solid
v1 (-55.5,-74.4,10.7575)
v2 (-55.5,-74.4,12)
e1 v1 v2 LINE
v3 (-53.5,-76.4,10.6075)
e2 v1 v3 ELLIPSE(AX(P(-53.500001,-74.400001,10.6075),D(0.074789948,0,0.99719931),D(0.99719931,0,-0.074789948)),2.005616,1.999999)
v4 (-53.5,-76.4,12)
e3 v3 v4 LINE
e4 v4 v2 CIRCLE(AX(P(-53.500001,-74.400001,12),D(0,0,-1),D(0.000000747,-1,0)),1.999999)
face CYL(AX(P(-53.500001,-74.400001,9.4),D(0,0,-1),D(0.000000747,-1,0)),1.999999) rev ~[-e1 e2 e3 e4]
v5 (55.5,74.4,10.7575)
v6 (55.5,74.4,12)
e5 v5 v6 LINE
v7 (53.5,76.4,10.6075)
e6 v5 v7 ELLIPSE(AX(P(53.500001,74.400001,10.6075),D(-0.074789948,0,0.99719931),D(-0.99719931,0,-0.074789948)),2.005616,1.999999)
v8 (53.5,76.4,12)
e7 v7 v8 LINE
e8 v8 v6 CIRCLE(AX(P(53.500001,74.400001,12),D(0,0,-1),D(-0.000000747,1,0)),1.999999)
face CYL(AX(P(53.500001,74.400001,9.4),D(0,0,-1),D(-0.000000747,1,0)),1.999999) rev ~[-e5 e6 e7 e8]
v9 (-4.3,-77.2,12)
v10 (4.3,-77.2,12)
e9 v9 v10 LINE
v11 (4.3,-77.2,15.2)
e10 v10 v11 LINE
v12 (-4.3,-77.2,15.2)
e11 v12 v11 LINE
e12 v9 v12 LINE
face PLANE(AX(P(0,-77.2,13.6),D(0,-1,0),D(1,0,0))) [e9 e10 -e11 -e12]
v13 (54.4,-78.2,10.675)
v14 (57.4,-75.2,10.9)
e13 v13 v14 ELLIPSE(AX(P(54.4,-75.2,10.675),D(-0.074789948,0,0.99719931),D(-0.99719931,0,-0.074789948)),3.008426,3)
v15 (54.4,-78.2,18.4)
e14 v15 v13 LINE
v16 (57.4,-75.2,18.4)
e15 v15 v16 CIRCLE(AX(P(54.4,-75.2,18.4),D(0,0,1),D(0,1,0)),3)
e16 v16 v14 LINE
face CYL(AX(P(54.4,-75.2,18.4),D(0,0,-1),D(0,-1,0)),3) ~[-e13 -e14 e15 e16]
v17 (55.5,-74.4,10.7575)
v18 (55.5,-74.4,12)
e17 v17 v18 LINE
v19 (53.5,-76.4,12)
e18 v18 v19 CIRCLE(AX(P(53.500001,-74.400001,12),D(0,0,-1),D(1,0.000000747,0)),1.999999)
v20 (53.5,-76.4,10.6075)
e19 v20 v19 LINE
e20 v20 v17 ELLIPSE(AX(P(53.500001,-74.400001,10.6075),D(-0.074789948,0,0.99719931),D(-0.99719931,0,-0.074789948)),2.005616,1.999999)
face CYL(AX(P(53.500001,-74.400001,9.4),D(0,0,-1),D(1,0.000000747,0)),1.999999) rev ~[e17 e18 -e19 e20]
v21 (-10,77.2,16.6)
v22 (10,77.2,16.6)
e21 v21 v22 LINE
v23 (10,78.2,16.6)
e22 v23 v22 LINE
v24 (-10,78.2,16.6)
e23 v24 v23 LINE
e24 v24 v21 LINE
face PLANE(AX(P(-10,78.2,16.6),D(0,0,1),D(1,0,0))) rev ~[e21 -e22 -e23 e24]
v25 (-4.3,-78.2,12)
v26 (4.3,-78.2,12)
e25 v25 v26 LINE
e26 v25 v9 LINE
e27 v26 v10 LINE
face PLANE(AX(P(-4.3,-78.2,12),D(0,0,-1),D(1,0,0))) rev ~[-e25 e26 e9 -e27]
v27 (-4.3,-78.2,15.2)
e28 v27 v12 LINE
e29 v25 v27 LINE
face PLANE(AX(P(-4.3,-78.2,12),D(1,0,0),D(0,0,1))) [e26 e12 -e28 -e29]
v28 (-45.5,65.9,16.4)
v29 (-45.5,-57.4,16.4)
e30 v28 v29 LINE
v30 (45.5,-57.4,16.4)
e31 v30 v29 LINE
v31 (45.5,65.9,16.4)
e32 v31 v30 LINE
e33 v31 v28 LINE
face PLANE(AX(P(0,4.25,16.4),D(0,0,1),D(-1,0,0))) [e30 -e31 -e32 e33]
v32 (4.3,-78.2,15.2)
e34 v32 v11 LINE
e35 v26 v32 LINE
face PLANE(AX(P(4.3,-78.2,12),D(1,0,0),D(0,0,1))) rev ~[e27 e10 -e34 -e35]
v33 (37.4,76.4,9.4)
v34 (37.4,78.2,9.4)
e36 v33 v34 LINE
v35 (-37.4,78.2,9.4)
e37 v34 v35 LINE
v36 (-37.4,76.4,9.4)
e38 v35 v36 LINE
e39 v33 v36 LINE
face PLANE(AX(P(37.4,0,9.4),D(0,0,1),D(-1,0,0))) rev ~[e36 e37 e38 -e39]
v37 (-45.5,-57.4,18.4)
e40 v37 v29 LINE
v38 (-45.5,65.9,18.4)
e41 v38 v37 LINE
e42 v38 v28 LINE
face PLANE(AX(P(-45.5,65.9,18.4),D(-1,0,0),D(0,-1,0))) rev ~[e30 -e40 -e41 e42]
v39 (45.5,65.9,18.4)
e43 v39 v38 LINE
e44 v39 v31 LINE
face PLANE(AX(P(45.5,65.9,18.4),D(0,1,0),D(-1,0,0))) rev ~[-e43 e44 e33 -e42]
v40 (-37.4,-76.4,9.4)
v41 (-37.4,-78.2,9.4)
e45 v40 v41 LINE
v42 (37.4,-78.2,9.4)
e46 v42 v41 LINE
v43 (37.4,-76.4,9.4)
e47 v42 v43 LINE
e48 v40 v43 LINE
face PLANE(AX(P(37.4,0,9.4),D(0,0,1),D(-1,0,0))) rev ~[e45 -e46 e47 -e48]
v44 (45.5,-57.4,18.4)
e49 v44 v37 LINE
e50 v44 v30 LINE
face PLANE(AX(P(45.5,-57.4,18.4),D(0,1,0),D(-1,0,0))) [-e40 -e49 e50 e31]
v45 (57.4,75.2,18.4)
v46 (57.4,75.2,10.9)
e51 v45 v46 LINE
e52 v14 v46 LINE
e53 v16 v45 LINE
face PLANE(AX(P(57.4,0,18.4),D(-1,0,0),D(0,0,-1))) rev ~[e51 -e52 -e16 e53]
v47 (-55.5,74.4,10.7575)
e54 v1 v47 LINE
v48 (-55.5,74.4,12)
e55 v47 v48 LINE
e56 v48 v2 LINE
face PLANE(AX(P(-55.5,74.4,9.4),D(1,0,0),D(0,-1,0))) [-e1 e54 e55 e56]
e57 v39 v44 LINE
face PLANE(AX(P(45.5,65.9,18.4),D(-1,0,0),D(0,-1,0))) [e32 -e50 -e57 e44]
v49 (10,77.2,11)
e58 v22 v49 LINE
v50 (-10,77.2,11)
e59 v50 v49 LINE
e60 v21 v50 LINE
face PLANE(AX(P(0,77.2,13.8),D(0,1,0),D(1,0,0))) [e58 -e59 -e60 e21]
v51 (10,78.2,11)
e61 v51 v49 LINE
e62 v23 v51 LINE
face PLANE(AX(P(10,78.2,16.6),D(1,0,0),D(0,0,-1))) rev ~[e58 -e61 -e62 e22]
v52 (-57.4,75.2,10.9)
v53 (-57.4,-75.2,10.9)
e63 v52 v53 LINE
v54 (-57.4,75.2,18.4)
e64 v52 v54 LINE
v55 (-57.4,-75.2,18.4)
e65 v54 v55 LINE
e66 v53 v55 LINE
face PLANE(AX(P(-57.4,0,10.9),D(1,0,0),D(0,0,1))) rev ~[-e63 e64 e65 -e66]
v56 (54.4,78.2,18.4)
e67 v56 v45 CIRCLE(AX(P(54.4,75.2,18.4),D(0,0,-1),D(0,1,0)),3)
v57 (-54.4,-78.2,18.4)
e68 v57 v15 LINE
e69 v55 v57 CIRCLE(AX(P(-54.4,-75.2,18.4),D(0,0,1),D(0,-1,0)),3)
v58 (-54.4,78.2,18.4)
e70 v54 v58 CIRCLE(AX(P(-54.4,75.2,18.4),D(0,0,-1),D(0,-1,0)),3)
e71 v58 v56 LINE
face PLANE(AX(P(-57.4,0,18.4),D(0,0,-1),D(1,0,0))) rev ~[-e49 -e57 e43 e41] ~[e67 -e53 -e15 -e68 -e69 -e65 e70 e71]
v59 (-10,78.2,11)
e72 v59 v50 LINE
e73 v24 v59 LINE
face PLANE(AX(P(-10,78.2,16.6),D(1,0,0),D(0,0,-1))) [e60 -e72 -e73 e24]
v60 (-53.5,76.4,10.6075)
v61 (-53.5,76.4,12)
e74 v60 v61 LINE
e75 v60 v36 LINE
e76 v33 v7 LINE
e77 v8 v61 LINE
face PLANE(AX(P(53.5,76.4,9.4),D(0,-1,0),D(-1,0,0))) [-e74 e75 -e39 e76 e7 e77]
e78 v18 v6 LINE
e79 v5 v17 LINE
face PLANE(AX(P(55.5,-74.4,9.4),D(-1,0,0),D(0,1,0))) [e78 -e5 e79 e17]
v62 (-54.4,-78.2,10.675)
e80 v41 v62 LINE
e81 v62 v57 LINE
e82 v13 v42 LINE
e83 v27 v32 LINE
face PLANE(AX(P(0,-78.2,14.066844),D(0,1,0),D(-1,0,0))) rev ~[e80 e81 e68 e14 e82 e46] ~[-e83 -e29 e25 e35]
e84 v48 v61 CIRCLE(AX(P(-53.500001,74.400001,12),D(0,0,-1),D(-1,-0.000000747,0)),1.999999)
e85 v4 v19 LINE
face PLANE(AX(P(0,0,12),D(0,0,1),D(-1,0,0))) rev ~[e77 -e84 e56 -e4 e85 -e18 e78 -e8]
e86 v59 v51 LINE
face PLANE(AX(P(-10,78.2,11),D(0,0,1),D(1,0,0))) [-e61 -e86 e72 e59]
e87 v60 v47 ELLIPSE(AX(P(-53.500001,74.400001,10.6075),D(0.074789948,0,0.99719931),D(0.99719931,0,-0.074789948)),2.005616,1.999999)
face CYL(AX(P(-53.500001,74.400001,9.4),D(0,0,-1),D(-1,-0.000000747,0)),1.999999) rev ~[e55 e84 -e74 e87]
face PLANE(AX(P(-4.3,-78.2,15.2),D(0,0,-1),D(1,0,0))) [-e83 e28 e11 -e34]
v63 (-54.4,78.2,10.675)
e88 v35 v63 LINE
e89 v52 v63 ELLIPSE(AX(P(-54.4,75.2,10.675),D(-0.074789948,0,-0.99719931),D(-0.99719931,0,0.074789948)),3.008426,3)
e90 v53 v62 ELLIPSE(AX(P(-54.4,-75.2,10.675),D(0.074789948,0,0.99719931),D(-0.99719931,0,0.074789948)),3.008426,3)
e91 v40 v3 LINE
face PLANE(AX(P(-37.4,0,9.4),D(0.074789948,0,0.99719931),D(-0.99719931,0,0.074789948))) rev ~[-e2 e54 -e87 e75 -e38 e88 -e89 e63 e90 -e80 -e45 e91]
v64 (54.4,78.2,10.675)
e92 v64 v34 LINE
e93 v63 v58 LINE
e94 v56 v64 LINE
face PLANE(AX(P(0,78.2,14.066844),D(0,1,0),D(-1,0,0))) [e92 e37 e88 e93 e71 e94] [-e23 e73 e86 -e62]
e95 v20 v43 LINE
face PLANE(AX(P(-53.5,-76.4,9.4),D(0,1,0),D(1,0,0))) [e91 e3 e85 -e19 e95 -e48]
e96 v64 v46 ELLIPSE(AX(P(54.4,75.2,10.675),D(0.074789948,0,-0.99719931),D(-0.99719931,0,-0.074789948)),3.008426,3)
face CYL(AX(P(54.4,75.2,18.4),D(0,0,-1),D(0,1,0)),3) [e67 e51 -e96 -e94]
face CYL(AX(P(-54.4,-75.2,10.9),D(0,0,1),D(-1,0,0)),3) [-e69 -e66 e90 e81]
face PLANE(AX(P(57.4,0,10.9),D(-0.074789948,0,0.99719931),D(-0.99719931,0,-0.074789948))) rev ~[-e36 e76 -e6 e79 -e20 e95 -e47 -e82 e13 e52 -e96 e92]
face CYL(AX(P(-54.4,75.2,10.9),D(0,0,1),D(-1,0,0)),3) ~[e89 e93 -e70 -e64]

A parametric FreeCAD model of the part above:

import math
import FreeCAD as App
import Part
import Sketcher
from FreeCAD import Vector
Q = App.Units.Quantity


def edges_at(feature, points):
    """Names of the edges that pass closest to the given points."""
    edges = feature.Shape.Edges
    near = lambda p: min(range(len(edges)), key=lambda i: edges[i].distToShape(Part.Vertex(*p))[0])
    return sorted({f"Edge{near(p) + 1}" for p in points})


def add_polygon(sketch, points):
    """Adds a closed chain of lines whose ends are joined by coincident constraints."""
    first, n = sketch.GeometryCount, len(points)
    for a, b in zip(points, points[1:] + points[:1]):
        sketch.addGeometry(Part.LineSegment(App.Vector(*a, 0), App.Vector(*b, 0)), False)
    for i in range(n):
        sketch.addConstraint(Sketcher.Constraint("Coincident", first + i, 2, first + (i + 1) % n, 1))

doc = App.newDocument("Part")
body = doc.addObject("PartDesign::Body", "Body")

# Sketch on XZ plane
sketch1 = body.newObject("Sketcher::SketchObject", "Sketch")
sketch1.AttachmentSupport = (doc.getObject("XZ_Plane"), [""])
sketch1.MapMode = "FlatFace"
add_polygon(sketch1, [(57.4, 6.4), (-57.4, 6.4), (-57.4, -1.1), (-37.4, -2.6), (37.4, -2.6), (57.4, -1.1)])  # lines 0-5
sketch1.addConstraint(Sketcher.Constraint("Horizontal", 0))
sketch1.addConstraint(Sketcher.Constraint("Vertical", 1))
sketch1.addConstraint(Sketcher.Constraint("Horizontal", 3))
sketch1.addConstraint(Sketcher.Constraint("Vertical", 5))
sketch1.addConstraint(Sketcher.Constraint("Symmetric", 1, 2, 4, 2, -2))
sketch1.addConstraint(Sketcher.Constraint("Equal", 2, 4))
sketch1.addConstraint(Sketcher.Constraint("DistanceX", 0, 2, 0, 1, Q("114.8 mm")))
sketch1.addConstraint(Sketcher.Constraint("DistanceX", 3, 1, 3, 2, Q("74.8 mm")))
sketch1.addConstraint(Sketcher.Constraint("DistanceY", 1, 2, 1, 1, Q("7.5 mm")))
sketch1.addConstraint(Sketcher.Constraint("DistanceY", 2, 2, 0, 2, Q("9 mm")))
sketch1.addConstraint(Sketcher.Constraint("DistanceY", -1, 1, 0, 2, Q("6.4 mm")))
pad1 = body.newObject("PartDesign::Pad", "Pad")
pad1.Profile = sketch1
pad1.Type = "TwoLengths"
pad1.Length = 78.2
pad1.Length2 = 78.2

# Sketch on XY plane
sketch2 = body.newObject("Sketcher::SketchObject", "Sketch001")
sketch2.AttachmentSupport = (doc.getObject("XY_Plane"), [""])
sketch2.MapMode = "FlatFace"
sketch2.AttachmentOffset = App.Placement(Vector(0, 0, 6.4), App.Rotation())
add_polygon(sketch2, [(45.5, -57.4), (45.5, 65.9), (-45.5, 65.9), (-45.5, -57.4)])  # lines 0-3
sketch2.addConstraint(Sketcher.Constraint("Vertical", 0))
sketch2.addConstraint(Sketcher.Constraint("Horizontal", 1))
sketch2.addConstraint(Sketcher.Constraint("Vertical", 2))
sketch2.addConstraint(Sketcher.Constraint("Horizontal", 3))
sketch2.addConstraint(Sketcher.Constraint("DistanceX", 1, 2, 1, 1, Q("91 mm")))
sketch2.addConstraint(Sketcher.Constraint("DistanceY", 0, 1, 0, 2, Q("123.3 mm")))
sketch2.addConstraint(Sketcher.Constraint("DistanceX", -1, 1, 0, 2, Q("45.5 mm")))
sketch2.addConstraint(Sketcher.Constraint("DistanceY", -1, 1, 0, 2, Q("65.9 mm")))
pocket1 = body.newObject("PartDesign::Pocket", "Pocket")
pocket1.Profile = sketch2
pocket1.Length = 2

# Sketch on XY plane
sketch3 = body.newObject("Sketcher::SketchObject", "Sketch002")
sketch3.AttachmentSupport = (doc.getObject("XY_Plane"), [""])
sketch3.MapMode = "FlatFace"
sketch3.AttachmentOffset = App.Placement(Vector(0, 0, -2.6), App.Rotation())
sketch3.addGeometry(Part.LineSegment(Vector(53.5, -76.4, 0), Vector(-53.5, -76.4, 0)), False)
sketch3.addGeometry(Part.ArcOfCircle(Part.Circle(Vector(-53.500001, -74.400001, 0), Vector(0, 0, 1), 1.999999), math.radians(179.999957), math.radians(270.000043)), False)
sketch3.addGeometry(Part.LineSegment(Vector(-55.5, -74.4, 0), Vector(-55.5, 74.4, 0)), False)
sketch3.addGeometry(Part.ArcOfCircle(Part.Circle(Vector(-53.500001, 74.400001, 0), Vector(0, 0, 1), 1.999999), math.radians(89.999957), math.radians(180.000043)), False)
sketch3.addGeometry(Part.LineSegment(Vector(-53.5, 76.4, 0), Vector(53.5, 76.4, 0)), False)
sketch3.addGeometry(Part.ArcOfCircle(Part.Circle(Vector(53.500001, 74.400001, 0), Vector(0, 0, 1), 1.999999), math.radians(-0.000043), math.radians(90.000043)), False)
sketch3.addGeometry(Part.LineSegment(Vector(55.5, 74.4, 0), Vector(55.5, -74.4, 0)), False)
sketch3.addGeometry(Part.ArcOfCircle(Part.Circle(Vector(53.500001, -74.400001, 0), Vector(0, 0, 1), 1.999999), math.radians(-90.000043), math.radians(0.000043)), False)
sketch3.addConstraint(Sketcher.Constraint("Tangent", 0, 2, 1, 2))
sketch3.addConstraint(Sketcher.Constraint("Tangent", 1, 1, 2, 1))
sketch3.addConstraint(Sketcher.Constraint("Tangent", 2, 2, 3, 2))
sketch3.addConstraint(Sketcher.Constraint("Tangent", 3, 1, 4, 1))
sketch3.addConstraint(Sketcher.Constraint("Tangent", 4, 2, 5, 2))
sketch3.addConstraint(Sketcher.Constraint("Tangent", 5, 1, 6, 1))
sketch3.addConstraint(Sketcher.Constraint("Tangent", 6, 2, 7, 2))
sketch3.addConstraint(Sketcher.Constraint("Tangent", 7, 1, 0, 1))
sketch3.addConstraint(Sketcher.Constraint("Horizontal", 0))
sketch3.addConstraint(Sketcher.Constraint("Vertical", 2))
sketch3.addConstraint(Sketcher.Constraint("Horizontal", 4))
sketch3.addConstraint(Sketcher.Constraint("Vertical", 6))
sketch3.addConstraint(Sketcher.Constraint("Equal", 1, 3))
sketch3.addConstraint(Sketcher.Constraint("Equal", 3, 5))
sketch3.addConstraint(Sketcher.Constraint("Equal", 5, 7))
sketch3.addConstraint(Sketcher.Constraint("Symmetric", 1, 3, 5, 3, -1, 1))
sketch3.addConstraint(Sketcher.Constraint("Radius", 1, Q("1.999999 mm")))
sketch3.addConstraint(Sketcher.Constraint("DistanceX", 0, 2, 0, 1, Q("107 mm")))
sketch3.addConstraint(Sketcher.Constraint("DistanceY", 2, 1, 2, 2, Q("148.8 mm")))
pocket2 = body.newObject("PartDesign::Pocket", "Pocket001")
pocket2.Profile = sketch3
pocket2.Length = 2.6
pocket2.Reversed = True
doc.recompute()

fillet = body.newObject("PartDesign::Fillet", "Fillet")
fillet.Base = (pocket2, edges_at(pocket2, [
    (57.4, -78.2, 2.65),
    (57.4, 78.2, 2.65),
    (-57.4, -78.2, 2.65),
    (-57.4, 78.2, 2.65),
]))
fillet.Radius = 3

# Sketch on XZ plane
sketch4 = body.newObject("Sketcher::SketchObject", "Sketch003")
sketch4.AttachmentSupport = (doc.getObject("XZ_Plane"), [""])
sketch4.MapMode = "FlatFace"
sketch4.AttachmentOffset = App.Placement(Vector(0, 0, 78.2), App.Rotation())
add_polygon(sketch4, [(-4.3, 3.2), (-4.3, 0), (4.3, 0), (4.3, 3.2)])  # lines 0-3
sketch4.addConstraint(Sketcher.Constraint("Vertical", 0))
sketch4.addConstraint(Sketcher.Constraint("Horizontal", 1))
sketch4.addConstraint(Sketcher.Constraint("Vertical", 2))
sketch4.addConstraint(Sketcher.Constraint("Horizontal", 3))
sketch4.addConstraint(Sketcher.Constraint("Symmetric", 0, 2, 1, 2, -1, 1))
sketch4.addConstraint(Sketcher.Constraint("DistanceX", 1, 1, 1, 2, Q("8.6 mm")))
sketch4.addConstraint(Sketcher.Constraint("DistanceY", 0, 2, 0, 1, Q("3.2 mm")))
pocket3 = body.newObject("PartDesign::Pocket", "Pocket002")
pocket3.Profile = sketch4
pocket3.Length = 1

# Sketch on XZ plane
sketch5 = body.newObject("Sketcher::SketchObject", "Sketch004")
sketch5.AttachmentSupport = (doc.getObject("XZ_Plane"), [""])
sketch5.MapMode = "FlatFace"
sketch5.AttachmentOffset = App.Placement(Vector(0, 0, -78.2), App.Rotation())
add_polygon(sketch5, [(-10, -1), (-10, 4.6), (10, 4.6), (10, -1)])  # lines 0-3
sketch5.addConstraint(Sketcher.Constraint("Vertical", 0))
sketch5.addConstraint(Sketcher.Constraint("Horizontal", 1))
sketch5.addConstraint(Sketcher.Constraint("Vertical", 2))
sketch5.addConstraint(Sketcher.Constraint("Horizontal", 3))
sketch5.addConstraint(Sketcher.Constraint("DistanceX", 1, 1, 1, 2, Q("20 mm")))
sketch5.addConstraint(Sketcher.Constraint("DistanceY", 0, 1, 0, 2, Q("5.6 mm")))
sketch5.addConstraint(Sketcher.Constraint("DistanceX", 0, 2, -1, 1, Q("10 mm")))
sketch5.addConstraint(Sketcher.Constraint("DistanceY", 2, 2, -1, 1, Q("1 mm")))
pocket4 = body.newObject("PartDesign::Pocket", "Pocket003")
pocket4.Profile = sketch5
pocket4.Length = 1
pocket4.Reversed = True
body2 = doc.addObject("PartDesign::Body", "Body001")
doc.recompute()

body.Placement = App.Placement(Vector(0, 0, 12), App.Rotation(Vector(0, 0, 1), 0))
boolean = body2.newObject("PartDesign::Boolean", "Boolean")
boolean.Type = "Fuse"
boolean.addObjects([body])

doc.recompute()
